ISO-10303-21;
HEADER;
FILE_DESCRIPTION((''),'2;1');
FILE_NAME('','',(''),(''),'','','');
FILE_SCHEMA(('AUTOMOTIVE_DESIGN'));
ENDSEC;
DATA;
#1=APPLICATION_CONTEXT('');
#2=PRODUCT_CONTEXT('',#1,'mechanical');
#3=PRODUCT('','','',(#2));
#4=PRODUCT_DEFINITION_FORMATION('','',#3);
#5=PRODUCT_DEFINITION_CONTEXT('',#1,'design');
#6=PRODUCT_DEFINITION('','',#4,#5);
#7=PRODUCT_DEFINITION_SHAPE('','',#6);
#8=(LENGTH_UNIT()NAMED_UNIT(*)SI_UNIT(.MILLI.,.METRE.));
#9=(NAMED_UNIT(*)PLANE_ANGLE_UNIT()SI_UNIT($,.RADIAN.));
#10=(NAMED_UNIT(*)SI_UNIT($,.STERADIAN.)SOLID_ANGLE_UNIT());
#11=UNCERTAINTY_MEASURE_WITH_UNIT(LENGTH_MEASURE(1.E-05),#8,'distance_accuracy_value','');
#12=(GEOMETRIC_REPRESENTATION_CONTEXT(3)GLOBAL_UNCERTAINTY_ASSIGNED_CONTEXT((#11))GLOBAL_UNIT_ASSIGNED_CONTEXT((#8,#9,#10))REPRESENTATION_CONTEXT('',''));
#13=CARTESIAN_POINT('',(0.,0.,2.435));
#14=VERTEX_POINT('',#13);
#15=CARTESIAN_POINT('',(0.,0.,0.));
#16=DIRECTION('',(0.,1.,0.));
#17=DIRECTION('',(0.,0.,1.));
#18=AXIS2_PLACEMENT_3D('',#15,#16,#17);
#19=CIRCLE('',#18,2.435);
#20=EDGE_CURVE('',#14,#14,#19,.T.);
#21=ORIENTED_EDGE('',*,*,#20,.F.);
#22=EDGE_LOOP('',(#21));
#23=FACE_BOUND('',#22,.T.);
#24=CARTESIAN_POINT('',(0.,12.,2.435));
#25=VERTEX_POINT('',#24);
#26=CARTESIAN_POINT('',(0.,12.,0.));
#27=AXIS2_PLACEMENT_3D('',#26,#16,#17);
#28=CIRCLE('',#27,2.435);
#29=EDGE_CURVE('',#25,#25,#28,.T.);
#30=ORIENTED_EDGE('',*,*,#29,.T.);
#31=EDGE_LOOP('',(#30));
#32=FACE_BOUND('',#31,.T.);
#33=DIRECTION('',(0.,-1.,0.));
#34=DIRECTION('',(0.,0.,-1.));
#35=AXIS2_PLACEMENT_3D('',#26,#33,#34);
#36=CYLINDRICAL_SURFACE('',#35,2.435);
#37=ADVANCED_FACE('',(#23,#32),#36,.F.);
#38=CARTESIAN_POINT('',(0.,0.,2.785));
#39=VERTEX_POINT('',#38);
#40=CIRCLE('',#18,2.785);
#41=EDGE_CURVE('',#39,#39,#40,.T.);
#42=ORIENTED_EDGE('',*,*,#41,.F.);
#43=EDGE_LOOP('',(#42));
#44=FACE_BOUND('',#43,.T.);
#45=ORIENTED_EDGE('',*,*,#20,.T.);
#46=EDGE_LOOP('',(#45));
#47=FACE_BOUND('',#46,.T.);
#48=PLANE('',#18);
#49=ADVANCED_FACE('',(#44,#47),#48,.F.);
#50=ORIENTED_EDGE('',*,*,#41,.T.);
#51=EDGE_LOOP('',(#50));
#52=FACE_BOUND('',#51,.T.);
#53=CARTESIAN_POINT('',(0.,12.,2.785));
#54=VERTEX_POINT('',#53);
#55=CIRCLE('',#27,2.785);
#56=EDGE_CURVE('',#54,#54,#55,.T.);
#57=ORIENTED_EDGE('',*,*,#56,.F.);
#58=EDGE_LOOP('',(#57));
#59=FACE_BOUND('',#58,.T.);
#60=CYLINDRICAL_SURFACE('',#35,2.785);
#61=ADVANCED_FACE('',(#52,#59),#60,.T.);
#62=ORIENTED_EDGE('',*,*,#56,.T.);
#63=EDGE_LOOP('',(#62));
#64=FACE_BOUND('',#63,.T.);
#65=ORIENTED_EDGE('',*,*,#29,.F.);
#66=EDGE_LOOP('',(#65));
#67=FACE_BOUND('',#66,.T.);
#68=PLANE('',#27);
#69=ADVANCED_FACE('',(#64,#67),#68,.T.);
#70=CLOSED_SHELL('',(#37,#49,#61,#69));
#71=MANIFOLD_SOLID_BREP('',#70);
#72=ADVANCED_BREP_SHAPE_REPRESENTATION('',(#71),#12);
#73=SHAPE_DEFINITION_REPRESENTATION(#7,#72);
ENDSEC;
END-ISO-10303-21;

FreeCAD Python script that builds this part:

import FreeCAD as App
import Part
import Sketcher
Q = App.Units.Quantity


def faces_at(feature, points):
    """Names of the faces that lie closest to the given points."""
    faces = feature.Shape.Faces
    near = lambda p: min(range(len(faces)), key=lambda i: faces[i].distToShape(Part.Vertex(*p))[0])
    return sorted({f"Face{near(p) + 1}" for p in points})

doc = App.newDocument("Part")
body = doc.addObject("PartDesign::Body", "Body")

# Sketch on XZ plane
sketch1 = doc.addObject("Sketcher::SketchObject", "Sketch")
body.addObject(sketch1)
sketch1.AttachmentSupport = (doc.XZ_Plane, [""])
sketch1.MapMode = "FlatFace"
sketch1.addGeometry(Part.Circle(App.Vector(0, 0, 0), App.Vector(0, 0, 1), 2.8), False)
sketch1.addConstraint(Sketcher.Constraint("Coincident", 0, 3, -1, 1))
sketch1.addConstraint(Sketcher.Constraint("Diameter", 0, Q("5.57 mm")))
pad1 = doc.addObject("PartDesign::Pad", "Pad")
body.addObject(pad1)
pad1.Profile = sketch1
pad1.Length = 12
pad1.Reversed = True
doc.recompute()

thickness = doc.addObject("PartDesign::Thickness", "Thickness")
body.addObject(thickness)
thickness.Base = (pad1, faces_at(pad1, [(0, 12, 0), (0, 0, 0)]))
thickness.Value = 0.35
thickness.Reversed = True
thickness.Join = "Intersection"

doc.recompute()
